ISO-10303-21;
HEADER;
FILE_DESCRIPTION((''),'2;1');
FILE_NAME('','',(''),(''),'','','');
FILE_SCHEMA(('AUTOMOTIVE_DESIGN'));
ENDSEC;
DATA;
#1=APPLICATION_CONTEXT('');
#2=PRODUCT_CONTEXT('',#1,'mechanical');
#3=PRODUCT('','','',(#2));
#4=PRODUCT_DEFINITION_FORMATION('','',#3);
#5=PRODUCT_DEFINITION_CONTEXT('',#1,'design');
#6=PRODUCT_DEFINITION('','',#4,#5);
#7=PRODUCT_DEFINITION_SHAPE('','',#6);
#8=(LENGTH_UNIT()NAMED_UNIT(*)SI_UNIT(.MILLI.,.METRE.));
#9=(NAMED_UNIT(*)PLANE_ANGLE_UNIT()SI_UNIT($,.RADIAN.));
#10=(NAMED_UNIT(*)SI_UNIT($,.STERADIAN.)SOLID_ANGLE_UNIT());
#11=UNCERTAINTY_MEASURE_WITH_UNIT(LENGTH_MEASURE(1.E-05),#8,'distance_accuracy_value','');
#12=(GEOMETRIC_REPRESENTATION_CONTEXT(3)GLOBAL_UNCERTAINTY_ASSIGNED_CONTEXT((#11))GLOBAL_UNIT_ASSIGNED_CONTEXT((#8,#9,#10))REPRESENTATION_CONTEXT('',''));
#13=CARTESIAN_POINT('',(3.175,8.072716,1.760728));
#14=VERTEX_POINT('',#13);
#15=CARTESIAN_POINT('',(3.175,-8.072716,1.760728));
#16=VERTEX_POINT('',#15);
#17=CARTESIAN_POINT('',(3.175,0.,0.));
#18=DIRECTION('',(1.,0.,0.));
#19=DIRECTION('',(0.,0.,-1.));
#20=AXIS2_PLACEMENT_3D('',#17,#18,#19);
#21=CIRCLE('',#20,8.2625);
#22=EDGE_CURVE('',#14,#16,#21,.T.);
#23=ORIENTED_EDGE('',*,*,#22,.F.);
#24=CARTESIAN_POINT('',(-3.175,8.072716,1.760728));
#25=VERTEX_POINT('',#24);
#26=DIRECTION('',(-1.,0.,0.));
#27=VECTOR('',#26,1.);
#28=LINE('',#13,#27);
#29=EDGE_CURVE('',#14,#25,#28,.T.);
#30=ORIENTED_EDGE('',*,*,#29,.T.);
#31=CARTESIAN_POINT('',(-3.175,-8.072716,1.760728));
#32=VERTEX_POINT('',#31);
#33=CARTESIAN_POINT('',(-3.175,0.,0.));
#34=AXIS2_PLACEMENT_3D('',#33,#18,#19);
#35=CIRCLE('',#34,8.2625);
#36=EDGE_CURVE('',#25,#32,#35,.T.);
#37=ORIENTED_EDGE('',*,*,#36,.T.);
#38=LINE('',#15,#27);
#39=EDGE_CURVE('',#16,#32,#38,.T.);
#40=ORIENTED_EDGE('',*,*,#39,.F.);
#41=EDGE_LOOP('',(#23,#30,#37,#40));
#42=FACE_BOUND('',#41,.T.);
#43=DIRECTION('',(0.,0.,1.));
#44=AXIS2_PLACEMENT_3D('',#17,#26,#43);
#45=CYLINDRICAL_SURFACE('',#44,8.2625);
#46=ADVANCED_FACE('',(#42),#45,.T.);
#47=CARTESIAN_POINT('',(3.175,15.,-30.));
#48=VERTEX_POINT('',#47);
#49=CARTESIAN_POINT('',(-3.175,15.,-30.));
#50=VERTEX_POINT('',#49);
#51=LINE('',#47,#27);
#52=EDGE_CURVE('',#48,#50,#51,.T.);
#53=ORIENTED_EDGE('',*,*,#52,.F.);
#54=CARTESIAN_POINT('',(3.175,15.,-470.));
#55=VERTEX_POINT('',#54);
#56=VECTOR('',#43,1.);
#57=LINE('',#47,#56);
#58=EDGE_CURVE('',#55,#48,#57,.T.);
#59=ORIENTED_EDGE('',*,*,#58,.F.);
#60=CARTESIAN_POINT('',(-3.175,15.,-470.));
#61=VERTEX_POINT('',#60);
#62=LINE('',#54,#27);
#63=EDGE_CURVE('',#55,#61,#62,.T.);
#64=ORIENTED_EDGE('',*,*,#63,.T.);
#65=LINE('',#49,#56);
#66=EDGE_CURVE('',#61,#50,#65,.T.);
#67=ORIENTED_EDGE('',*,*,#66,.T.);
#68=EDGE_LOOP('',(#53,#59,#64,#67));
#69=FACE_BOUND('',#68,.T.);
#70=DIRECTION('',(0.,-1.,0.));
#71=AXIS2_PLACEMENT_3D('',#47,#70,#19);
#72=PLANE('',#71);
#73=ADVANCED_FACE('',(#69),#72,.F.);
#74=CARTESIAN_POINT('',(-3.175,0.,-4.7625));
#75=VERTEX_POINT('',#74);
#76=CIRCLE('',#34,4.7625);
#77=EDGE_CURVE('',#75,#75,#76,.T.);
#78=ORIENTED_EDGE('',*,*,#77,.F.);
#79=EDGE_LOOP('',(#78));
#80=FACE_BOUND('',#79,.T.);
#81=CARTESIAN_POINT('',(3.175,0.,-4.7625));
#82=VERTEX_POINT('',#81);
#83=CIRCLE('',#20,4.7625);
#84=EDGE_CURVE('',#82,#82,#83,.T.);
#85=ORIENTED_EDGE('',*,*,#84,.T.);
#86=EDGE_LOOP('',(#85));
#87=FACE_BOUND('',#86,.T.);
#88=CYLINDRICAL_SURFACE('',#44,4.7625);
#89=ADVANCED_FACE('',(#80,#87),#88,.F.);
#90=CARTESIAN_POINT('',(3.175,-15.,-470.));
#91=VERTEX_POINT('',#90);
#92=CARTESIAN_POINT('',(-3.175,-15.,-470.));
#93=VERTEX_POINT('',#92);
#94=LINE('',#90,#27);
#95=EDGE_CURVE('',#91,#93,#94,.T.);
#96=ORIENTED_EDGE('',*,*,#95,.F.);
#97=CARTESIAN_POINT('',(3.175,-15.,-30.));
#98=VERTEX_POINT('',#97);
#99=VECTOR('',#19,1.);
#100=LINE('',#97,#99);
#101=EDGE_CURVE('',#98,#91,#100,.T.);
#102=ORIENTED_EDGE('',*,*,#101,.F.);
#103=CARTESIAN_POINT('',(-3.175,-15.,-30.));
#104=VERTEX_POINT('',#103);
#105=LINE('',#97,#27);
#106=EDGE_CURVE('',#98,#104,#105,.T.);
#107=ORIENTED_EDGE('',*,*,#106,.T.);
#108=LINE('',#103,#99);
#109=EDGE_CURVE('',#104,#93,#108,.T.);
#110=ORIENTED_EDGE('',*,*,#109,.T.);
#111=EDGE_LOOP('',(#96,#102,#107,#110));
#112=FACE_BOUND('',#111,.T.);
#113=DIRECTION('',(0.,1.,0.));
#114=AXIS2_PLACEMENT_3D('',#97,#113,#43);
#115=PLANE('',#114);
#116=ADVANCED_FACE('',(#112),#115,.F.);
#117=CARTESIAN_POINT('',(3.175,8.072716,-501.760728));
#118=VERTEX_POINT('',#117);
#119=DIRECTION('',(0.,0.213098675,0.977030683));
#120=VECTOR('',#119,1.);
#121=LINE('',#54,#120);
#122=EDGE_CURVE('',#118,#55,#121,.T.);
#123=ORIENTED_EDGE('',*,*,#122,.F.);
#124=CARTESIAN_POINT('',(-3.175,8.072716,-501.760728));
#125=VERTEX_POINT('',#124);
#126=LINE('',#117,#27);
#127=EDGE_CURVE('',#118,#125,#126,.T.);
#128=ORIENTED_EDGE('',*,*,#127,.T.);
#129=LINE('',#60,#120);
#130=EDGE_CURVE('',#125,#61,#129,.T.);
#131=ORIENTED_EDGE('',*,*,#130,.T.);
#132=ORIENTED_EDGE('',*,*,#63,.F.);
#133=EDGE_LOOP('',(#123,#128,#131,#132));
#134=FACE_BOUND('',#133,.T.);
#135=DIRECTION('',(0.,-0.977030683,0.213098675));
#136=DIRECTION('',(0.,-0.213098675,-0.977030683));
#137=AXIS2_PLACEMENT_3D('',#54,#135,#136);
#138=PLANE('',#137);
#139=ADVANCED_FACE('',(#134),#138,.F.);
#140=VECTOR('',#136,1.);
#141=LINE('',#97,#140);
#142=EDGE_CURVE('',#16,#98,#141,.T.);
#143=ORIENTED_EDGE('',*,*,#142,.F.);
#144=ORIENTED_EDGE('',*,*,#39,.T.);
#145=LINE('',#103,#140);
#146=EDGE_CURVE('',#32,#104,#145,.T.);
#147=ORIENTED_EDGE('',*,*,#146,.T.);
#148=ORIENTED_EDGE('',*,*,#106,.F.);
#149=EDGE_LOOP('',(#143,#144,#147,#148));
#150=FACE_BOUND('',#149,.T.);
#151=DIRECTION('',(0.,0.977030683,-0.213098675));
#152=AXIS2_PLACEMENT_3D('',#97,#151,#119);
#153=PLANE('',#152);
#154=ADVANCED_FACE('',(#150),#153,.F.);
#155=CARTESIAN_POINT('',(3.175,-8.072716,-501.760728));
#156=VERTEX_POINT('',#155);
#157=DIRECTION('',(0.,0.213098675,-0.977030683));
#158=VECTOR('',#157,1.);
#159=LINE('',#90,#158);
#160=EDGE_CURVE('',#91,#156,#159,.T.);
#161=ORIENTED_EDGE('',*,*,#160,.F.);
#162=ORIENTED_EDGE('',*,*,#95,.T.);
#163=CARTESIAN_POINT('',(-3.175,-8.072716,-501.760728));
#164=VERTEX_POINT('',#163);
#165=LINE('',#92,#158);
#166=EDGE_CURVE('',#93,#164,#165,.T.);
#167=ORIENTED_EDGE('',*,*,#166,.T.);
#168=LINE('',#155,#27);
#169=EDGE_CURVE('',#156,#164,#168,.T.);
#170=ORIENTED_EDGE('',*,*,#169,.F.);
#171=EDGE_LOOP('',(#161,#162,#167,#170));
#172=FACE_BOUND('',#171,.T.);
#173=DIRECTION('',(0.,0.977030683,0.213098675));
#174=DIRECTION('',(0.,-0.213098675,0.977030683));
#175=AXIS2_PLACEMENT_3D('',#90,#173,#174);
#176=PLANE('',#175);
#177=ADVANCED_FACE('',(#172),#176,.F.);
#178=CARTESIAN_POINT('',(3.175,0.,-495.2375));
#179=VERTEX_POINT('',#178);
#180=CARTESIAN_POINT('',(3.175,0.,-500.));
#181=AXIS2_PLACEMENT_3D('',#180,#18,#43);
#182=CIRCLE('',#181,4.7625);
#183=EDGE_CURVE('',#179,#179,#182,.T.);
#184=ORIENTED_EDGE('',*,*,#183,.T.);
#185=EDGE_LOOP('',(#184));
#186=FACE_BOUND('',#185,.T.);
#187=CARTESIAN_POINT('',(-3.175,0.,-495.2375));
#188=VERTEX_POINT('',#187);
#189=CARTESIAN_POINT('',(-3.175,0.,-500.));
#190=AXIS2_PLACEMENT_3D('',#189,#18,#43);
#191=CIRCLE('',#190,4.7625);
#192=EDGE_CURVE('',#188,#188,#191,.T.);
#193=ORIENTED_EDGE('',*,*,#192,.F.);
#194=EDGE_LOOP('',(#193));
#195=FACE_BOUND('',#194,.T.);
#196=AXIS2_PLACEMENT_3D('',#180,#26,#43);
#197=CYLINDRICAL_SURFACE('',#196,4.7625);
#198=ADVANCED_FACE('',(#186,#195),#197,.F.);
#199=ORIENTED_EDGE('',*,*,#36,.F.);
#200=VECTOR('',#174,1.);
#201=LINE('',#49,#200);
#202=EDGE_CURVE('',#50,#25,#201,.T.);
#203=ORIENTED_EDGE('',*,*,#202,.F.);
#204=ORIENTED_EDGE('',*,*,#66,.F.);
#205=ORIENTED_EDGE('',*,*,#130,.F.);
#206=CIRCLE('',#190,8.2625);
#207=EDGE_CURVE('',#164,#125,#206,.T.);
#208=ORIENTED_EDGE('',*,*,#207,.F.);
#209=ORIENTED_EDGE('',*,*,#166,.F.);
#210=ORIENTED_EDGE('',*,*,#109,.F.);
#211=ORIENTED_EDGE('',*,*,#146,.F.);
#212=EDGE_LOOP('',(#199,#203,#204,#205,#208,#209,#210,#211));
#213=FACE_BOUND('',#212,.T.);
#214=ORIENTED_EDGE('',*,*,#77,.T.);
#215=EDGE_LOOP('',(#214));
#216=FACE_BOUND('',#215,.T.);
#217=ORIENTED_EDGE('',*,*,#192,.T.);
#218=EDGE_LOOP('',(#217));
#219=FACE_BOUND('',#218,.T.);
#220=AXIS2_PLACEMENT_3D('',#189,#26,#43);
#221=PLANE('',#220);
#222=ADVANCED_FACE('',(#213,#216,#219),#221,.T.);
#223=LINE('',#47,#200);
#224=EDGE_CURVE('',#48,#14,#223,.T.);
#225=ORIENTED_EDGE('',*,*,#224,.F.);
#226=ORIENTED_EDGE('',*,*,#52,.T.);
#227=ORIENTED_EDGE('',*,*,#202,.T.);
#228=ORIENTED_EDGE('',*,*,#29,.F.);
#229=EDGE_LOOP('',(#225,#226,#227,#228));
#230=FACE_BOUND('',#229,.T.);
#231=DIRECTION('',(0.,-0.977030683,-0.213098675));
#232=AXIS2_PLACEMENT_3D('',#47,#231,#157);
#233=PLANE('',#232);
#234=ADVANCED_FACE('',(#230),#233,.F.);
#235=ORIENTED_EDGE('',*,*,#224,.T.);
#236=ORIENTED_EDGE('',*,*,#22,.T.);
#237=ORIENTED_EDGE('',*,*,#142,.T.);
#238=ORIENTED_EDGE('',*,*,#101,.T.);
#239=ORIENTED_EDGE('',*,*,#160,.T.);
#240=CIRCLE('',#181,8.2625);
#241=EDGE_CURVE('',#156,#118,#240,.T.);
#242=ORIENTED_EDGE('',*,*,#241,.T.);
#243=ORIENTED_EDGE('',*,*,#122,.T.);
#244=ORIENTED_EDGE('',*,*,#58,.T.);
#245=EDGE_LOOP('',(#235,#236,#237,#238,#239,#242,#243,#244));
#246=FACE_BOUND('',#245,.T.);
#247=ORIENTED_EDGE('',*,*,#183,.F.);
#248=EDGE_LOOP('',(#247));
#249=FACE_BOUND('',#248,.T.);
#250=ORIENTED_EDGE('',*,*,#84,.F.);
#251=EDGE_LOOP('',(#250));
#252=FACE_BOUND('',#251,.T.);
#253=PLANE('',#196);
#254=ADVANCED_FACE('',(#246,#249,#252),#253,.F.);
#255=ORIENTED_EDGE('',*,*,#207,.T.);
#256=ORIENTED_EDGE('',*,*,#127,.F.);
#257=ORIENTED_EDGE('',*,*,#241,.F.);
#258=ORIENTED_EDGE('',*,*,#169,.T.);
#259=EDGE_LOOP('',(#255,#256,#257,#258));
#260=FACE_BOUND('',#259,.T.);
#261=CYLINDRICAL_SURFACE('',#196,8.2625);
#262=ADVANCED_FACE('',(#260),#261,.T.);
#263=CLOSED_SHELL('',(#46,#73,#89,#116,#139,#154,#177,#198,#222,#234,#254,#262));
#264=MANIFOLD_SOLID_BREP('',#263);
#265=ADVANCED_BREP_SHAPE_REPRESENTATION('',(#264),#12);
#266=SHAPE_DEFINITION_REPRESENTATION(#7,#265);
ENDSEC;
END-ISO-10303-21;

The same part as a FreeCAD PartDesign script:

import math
import FreeCAD as App
import Part
import Sketcher
Q = App.Units.Quantity

doc = App.newDocument("Part")
params = doc.addObject("Spreadsheet::Sheet", "Params")
for row, (alias, value) in enumerate([
    ("sketch1_diameter", "0.375 in"),
    ("pad1_length", "0.25 in"),
], start=1):
    params.set(f"A{row}", alias)
    params.set(f"B{row}", "=" + value)
    params.setAlias(f"B{row}", alias)

body = doc.addObject("PartDesign::Body", "Body")

sketch1 = body.newObject("Sketcher::SketchObject", "Sketch")
sketch1.AttachmentSupport = (doc.getObject("YZ_Plane"), [""])
sketch1.MapMode = "FlatFace"
sketch1.addGeometry([
    Part.LineSegment(App.Vector(15, -30, 0), App.Vector(8.1, 1.8, 0)),
    Part.ArcOfCircle(Part.Circle(App.Vector(0, 0, 0), App.Vector(0, 0, 1), 8.3), math.radians(12), math.radians(168)),
    Part.LineSegment(App.Vector(-8.1, 1.8, 0), App.Vector(-15, -30, 0)),
    Part.LineSegment(App.Vector(-15, -30, 0), App.Vector(-15, -470, 0)),
    Part.LineSegment(App.Vector(-15, -470, 0), App.Vector(-8.1, -501.8, 0)),
    Part.ArcOfCircle(Part.Circle(App.Vector(0, -500, 0), App.Vector(0, 0, 1), 8.3), math.radians(-168), math.radians(-12)),
    Part.LineSegment(App.Vector(8.1, -501.8, 0), App.Vector(15, -470, 0)),
    Part.LineSegment(App.Vector(15, -470, 0), App.Vector(15, -30, 0)),
    Part.Circle(App.Vector(0, 0, 0), App.Vector(0, 0, 1), 4.8),
    Part.Circle(App.Vector(0, -500, 0), App.Vector(0, 0, 1), 4.8),
], False)
sketch1.addConstraint([
    Sketcher.Constraint("Tangent", 0, 2, 1, 1),
    Sketcher.Constraint("Tangent", 1, 2, 2, 1),
    Sketcher.Constraint("Coincident", 2, 2, 3, 1),
    Sketcher.Constraint("Coincident", 3, 2, 4, 1),
    Sketcher.Constraint("Tangent", 4, 2, 5, 1),
    Sketcher.Constraint("Tangent", 5, 2, 6, 1),
    Sketcher.Constraint("Coincident", 6, 2, 7, 1),
    Sketcher.Constraint("Coincident", 7, 2, 0, 1),
    Sketcher.Constraint("Vertical", 3),
    Sketcher.Constraint("Vertical", 7),
    Sketcher.Constraint("Coincident", 1, 3, -1, 1),
    Sketcher.Constraint("Coincident", 8, 3, -1, 1),
    Sketcher.Constraint("Coincident", 9, 3, 5, 3),
    Sketcher.Constraint("Equal", 1, 5),
    Sketcher.Constraint("Equal", 8, 9),
    Sketcher.Constraint("Symmetric", 4, 2, 5, 2, -2),
    Sketcher.Constraint("Symmetric", 2, 2, 7, 2, -2),
    Sketcher.Constraint("Parallel", 0, 4),
    Sketcher.Constraint("Diameter", 8, Q("0.375 in")),
    Sketcher.Constraint("Radius", 1, Q("8.2625 mm")),
    Sketcher.Constraint("DistanceY", 3, 2, 3, 1, Q("440 mm")),
    Sketcher.Constraint("Distance", 0, Q("32.507401 mm")),
    Sketcher.Constraint("DistanceY", 5, 3, -1, 1, Q("500 mm")),
])
sketch1.setExpression("Constraints[18]", "Params.sketch1_diameter")
pad1 = body.newObject("PartDesign::Pad", "Pad")
pad1.Profile = sketch1
pad1.setExpression("Length", "Params.pad1_length")
pad1.Midplane = True

doc.recompute()
